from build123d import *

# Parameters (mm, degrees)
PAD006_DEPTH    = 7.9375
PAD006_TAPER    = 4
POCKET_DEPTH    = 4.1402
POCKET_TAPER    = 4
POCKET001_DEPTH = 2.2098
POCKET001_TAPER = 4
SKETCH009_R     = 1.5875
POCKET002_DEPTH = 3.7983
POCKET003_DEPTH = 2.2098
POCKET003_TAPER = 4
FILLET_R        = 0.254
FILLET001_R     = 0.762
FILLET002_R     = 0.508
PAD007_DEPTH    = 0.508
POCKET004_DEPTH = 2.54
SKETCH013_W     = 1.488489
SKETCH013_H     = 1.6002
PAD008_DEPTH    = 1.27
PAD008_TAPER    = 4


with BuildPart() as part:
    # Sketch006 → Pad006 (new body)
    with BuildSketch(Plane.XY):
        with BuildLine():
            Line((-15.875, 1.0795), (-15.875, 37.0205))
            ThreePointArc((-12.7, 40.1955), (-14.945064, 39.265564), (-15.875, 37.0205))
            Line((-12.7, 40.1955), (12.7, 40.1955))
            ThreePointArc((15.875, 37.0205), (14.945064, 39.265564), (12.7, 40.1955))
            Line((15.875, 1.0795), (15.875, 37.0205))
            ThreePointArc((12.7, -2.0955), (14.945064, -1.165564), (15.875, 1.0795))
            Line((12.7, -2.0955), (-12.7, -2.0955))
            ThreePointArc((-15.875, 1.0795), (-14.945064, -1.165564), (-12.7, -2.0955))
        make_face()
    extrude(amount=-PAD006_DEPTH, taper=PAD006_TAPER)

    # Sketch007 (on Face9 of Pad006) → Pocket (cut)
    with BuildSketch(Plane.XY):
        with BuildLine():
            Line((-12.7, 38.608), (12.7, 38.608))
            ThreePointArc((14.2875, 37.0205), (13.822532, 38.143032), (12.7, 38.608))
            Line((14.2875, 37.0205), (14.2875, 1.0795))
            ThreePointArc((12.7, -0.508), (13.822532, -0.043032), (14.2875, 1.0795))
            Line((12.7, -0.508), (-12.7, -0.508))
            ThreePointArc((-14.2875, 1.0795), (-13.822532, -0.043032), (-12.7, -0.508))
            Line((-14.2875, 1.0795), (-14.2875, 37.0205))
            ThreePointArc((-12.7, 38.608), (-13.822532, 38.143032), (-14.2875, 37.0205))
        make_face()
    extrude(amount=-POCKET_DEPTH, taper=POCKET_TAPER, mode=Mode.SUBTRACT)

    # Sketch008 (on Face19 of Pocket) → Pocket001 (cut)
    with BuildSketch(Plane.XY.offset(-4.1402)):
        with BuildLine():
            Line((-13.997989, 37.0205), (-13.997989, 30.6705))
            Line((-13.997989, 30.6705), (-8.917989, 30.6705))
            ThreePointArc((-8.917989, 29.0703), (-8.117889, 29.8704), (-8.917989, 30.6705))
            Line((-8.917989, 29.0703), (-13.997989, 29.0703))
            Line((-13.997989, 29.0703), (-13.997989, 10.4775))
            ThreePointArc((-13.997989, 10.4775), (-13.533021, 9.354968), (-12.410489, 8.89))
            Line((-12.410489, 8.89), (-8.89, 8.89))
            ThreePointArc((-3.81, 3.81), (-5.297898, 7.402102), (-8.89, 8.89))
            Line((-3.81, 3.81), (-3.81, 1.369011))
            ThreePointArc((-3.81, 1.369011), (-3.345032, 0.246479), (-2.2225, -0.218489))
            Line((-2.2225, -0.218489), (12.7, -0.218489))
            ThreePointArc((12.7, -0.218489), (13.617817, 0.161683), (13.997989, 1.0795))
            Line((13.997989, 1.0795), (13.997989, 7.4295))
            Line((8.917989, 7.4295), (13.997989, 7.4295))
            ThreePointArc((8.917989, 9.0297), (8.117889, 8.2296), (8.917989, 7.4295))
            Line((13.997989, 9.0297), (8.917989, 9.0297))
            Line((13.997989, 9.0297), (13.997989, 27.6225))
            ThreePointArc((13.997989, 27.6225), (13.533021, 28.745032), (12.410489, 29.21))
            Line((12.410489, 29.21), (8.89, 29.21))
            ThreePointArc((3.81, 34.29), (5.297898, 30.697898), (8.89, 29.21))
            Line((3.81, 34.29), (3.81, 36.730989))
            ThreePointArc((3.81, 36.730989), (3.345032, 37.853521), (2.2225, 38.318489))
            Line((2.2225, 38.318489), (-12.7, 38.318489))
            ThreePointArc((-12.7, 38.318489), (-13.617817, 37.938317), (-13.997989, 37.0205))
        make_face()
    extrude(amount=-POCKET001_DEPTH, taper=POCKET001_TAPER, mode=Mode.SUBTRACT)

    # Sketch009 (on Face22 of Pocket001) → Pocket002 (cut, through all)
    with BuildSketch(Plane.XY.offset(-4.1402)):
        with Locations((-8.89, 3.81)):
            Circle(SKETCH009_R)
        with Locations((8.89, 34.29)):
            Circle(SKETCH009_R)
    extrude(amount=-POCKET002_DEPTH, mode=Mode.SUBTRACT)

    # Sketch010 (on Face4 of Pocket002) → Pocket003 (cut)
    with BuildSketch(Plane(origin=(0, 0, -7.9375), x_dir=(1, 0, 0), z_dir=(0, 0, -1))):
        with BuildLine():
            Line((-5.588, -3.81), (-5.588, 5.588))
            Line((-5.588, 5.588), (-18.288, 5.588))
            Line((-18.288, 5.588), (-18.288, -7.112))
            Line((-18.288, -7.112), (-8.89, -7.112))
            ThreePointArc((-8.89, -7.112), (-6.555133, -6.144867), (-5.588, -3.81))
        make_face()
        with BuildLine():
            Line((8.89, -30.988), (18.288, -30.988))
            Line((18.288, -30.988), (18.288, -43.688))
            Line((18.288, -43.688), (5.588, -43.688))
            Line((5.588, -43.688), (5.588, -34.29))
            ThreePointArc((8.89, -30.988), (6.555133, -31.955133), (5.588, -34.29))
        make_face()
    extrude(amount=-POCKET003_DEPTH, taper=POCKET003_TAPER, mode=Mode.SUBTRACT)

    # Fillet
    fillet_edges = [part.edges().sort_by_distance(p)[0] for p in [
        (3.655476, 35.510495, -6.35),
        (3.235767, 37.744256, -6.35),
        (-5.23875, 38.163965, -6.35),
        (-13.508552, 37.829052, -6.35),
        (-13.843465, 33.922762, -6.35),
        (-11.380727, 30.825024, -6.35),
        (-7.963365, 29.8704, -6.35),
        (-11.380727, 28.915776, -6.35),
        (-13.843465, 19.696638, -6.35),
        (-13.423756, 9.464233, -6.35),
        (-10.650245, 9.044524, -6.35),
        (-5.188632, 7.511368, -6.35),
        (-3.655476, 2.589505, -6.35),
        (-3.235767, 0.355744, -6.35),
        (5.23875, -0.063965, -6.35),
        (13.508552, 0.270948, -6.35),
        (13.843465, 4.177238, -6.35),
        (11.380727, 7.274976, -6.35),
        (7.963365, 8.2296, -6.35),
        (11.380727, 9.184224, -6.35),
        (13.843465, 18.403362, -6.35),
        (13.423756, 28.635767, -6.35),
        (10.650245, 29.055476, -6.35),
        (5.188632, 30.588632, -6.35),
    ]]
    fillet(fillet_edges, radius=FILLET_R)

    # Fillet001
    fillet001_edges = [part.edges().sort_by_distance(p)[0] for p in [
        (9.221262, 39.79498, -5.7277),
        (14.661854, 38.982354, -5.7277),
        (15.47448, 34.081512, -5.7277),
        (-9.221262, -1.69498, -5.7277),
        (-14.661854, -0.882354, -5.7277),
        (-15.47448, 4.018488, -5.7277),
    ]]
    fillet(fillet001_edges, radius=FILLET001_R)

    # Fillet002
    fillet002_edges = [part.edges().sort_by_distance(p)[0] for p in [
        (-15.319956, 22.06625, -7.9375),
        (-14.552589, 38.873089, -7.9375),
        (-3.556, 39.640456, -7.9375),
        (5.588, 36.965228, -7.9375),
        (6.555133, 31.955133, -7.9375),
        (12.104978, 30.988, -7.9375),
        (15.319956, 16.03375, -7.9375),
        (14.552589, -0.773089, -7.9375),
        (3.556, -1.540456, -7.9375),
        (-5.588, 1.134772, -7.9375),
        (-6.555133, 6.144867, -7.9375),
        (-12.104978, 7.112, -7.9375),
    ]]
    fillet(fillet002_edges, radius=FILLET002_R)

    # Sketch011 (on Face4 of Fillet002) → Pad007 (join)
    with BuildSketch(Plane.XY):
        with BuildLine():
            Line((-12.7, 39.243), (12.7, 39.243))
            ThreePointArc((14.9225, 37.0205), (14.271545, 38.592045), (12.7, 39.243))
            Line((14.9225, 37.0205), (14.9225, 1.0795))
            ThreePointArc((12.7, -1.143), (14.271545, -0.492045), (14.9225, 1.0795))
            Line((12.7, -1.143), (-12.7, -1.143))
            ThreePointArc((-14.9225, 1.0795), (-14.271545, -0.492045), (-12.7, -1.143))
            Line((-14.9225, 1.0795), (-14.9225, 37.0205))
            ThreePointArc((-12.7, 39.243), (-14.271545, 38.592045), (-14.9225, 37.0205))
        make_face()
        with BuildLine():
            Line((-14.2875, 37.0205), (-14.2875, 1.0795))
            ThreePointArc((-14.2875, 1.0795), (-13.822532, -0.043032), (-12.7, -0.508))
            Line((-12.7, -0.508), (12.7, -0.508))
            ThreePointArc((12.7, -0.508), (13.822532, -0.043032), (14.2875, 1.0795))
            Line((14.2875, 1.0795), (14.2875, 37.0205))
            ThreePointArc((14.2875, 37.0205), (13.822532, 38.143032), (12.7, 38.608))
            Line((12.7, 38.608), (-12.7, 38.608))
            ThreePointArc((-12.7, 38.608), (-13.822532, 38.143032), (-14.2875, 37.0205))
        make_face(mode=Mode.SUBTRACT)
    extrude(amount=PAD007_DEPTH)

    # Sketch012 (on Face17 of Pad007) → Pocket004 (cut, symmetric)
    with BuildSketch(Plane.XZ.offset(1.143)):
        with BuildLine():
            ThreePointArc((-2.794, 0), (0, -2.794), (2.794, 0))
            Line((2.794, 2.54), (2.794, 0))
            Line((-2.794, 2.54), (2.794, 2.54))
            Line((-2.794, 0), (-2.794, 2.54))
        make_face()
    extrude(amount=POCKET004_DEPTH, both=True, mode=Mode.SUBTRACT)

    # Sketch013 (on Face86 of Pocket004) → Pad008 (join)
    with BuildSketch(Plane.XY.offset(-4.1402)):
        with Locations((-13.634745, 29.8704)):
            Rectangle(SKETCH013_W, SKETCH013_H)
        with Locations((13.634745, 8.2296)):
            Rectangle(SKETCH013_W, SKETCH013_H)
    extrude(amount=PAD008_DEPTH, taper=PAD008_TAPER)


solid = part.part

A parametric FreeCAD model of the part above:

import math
import FreeCAD as App
import Part
import Sketcher
from FreeCAD import Vector
Q = App.Units.Quantity


def edges_at(feature, points):
    """Names of the edges that pass closest to the given points."""
    edges = feature.Shape.Edges
    near = lambda p: min(range(len(edges)), key=lambda i: edges[i].distToShape(Part.Vertex(*p))[0])
    return sorted({f"Edge{near(p) + 1}" for p in points})

doc = App.newDocument("Part")
body = doc.addObject("PartDesign::Body", "Body")

# Sketch on XY plane
sketch1 = body.newObject("Sketcher::SketchObject", "Sketch")
sketch1.AttachmentSupport = (doc.getObject("XY_Plane"), [""])
sketch1.MapMode = "FlatFace"
sketch1.addGeometry([
    Part.LineSegment(Vector(-15.875, 37.0205, 0), Vector(-15.875, 1.0795, 0)),  # 0
    Part.ArcOfCircle(Part.Circle(Vector(-12.7, 1.0795, 0), Vector(0, 0, 1), 3.175), math.radians(-179.999998), math.radians(-90.000002)),  # 1
    Part.LineSegment(Vector(-12.7, -2.0955, 0), Vector(12.7, -2.0955, 0)),  # 2
    Part.ArcOfCircle(Part.Circle(Vector(12.7, 1.0795, 0), Vector(0, 0, 1), 3.175), math.radians(-89.999998), math.radians(-0.000002)),  # 3
    Part.LineSegment(Vector(15.875, 1.0795, 0), Vector(15.875, 37.0205, 0)),  # 4
    Part.ArcOfCircle(Part.Circle(Vector(12.7, 37.0205, 0), Vector(0, 0, 1), 3.175), math.radians(0.000002), math.radians(89.999998)),  # 5
    Part.LineSegment(Vector(12.7, 40.1955, 0), Vector(-12.7, 40.1955, 0)),  # 6
    Part.ArcOfCircle(Part.Circle(Vector(-12.7, 37.0205, 0), Vector(0, 0, 1), 3.175), math.radians(90.000002), math.radians(179.999998)),  # 7
], False)
sketch1.addConstraint([
    Sketcher.Constraint("Tangent", 0, 2, 1, 1),
    Sketcher.Constraint("Tangent", 1, 2, 2, 1),
    Sketcher.Constraint("Tangent", 2, 2, 3, 1),
    Sketcher.Constraint("Tangent", 3, 2, 4, 1),
    Sketcher.Constraint("Tangent", 4, 2, 5, 1),
    Sketcher.Constraint("Tangent", 5, 2, 6, 1),
    Sketcher.Constraint("Tangent", 6, 2, 7, 1),
    Sketcher.Constraint("Tangent", 7, 2, 0, 1),
    Sketcher.Constraint("Vertical", 0),
    Sketcher.Constraint("Horizontal", 2),
    Sketcher.Constraint("Vertical", 4),
    Sketcher.Constraint("Horizontal", 6),
    Sketcher.Constraint("Equal", 1, 3),
    Sketcher.Constraint("Equal", 3, 5),
    Sketcher.Constraint("Equal", 5, 7),
    Sketcher.Constraint("DistanceX", 2, 1, 2, 2, Q("1 in")),
    Sketcher.Constraint("Radius", 1, Q("0.125 in")),
    Sketcher.Constraint("DistanceX", 1, 3, -1, 1, Q("0.5 in")),
    Sketcher.Constraint("DistanceY", 0, 2, 0, 1, Q("1.415 in")),
    Sketcher.Constraint("DistanceY", -1, 1, 1, 3, Q("0.0425 in")),
])
pad1 = body.newObject("PartDesign::Pad", "Pad")
pad1.Profile = sketch1
pad1.Length = Q("0.3125 in")
pad1.Reversed = True
pad1.TaperAngle = -4

# Sketch on XY plane
sketch2 = body.newObject("Sketcher::SketchObject", "Sketch001")
sketch2.AttachmentSupport = (doc.getObject("XY_Plane"), [""])
sketch2.MapMode = "FlatFace"
sketch2.addGeometry([
    Part.LineSegment(Vector(12.7, 38.608, 0), Vector(-12.7, 38.608, 0)),  # 0
    Part.ArcOfCircle(Part.Circle(Vector(-12.7, 37.0205, 0), Vector(0, 0, 1), 1.5875), math.radians(90.000002), math.radians(179.999998)),  # 1
    Part.LineSegment(Vector(-14.2875, 37.0205, 0), Vector(-14.2875, 1.0795, 0)),  # 2
    Part.ArcOfCircle(Part.Circle(Vector(-12.7, 1.0795, 0), Vector(0, 0, 1), 1.5875), math.radians(-179.999998), math.radians(-90.000002)),  # 3
    Part.LineSegment(Vector(-12.7, -0.508, 0), Vector(12.7, -0.508, 0)),  # 4
    Part.ArcOfCircle(Part.Circle(Vector(12.7, 1.0795, 0), Vector(0, 0, 1), 1.5875), math.radians(-89.999998), math.radians(-0.000002)),  # 5
    Part.LineSegment(Vector(14.2875, 1.0795, 0), Vector(14.2875, 37.0205, 0)),  # 6
    Part.ArcOfCircle(Part.Circle(Vector(12.7, 37.0205, 0), Vector(0, 0, 1), 1.5875), math.radians(0.000002), math.radians(89.999998)),  # 7
], False)
sketch2.addConstraint([
    Sketcher.Constraint("Tangent", 0, 2, 1, 1),
    Sketcher.Constraint("Tangent", 1, 2, 2, 1),
    Sketcher.Constraint("Tangent", 2, 2, 3, 1),
    Sketcher.Constraint("Tangent", 3, 2, 4, 1),
    Sketcher.Constraint("Tangent", 4, 2, 5, 1),
    Sketcher.Constraint("Tangent", 5, 2, 6, 1),
    Sketcher.Constraint("Tangent", 6, 2, 7, 1),
    Sketcher.Constraint("Tangent", 7, 2, 0, 1),
    Sketcher.Constraint("Horizontal", 0),
    Sketcher.Constraint("Vertical", 2),
    Sketcher.Constraint("Horizontal", 4),
    Sketcher.Constraint("Vertical", 6),
    Sketcher.Constraint("Equal", 1, 3),
    Sketcher.Constraint("Equal", 3, 5),
    Sketcher.Constraint("Equal", 5, 7),
    Sketcher.Constraint("DistanceX", 0, 2, 0, 1, Q("1 in")),
    Sketcher.Constraint("Radius", 1, Q("0.0625 in")),
    Sketcher.Constraint("DistanceX", 1, 3, -1, 1, Q("0.5 in")),
    Sketcher.Constraint("DistanceY", 2, 2, 2, 1, Q("1.415 in")),
    Sketcher.Constraint("DistanceY", -1, 1, 0, 2, Q("1.52 in")),
])
pocket1 = body.newObject("PartDesign::Pocket", "Pocket")
pocket1.Profile = sketch2
pocket1.Length = Q("0.163 in")
pocket1.TaperAngle = -4

# Sketch on XY plane
sketch3 = body.newObject("Sketcher::SketchObject", "Sketch002")
sketch3.AttachmentSupport = (doc.getObject("XY_Plane"), [""])
sketch3.MapMode = "FlatFace"
sketch3.AttachmentOffset = App.Placement(Vector(0, 0, -0.163 * 25.4), App.Rotation())
sketch3.addGeometry([
    Part.LineSegment(Vector(-13.997989, 37.0205, 0), Vector(-13.997989, 30.6705, 0)),  # 0
    Part.LineSegment(Vector(-13.997989, 30.6705, 0), Vector(-8.917989, 30.6705, 0)),  # 1
    Part.ArcOfCircle(Part.Circle(Vector(-8.917989, 29.8704, 0), Vector(0, 0, 1), 0.8001), math.radians(-90), math.radians(90)),  # 2
    Part.LineSegment(Vector(-8.917989, 29.0703, 0), Vector(-13.997989, 29.0703, 0)),  # 3
    Part.LineSegment(Vector(-13.997989, 29.0703, 0), Vector(-13.997989, 10.4775, 0)),  # 4
    Part.ArcOfCircle(Part.Circle(Vector(-12.410489, 10.4775, 0), Vector(0, 0, 1), 1.5875), math.radians(-179.999998), math.radians(-90.000002)),  # 5
    Part.LineSegment(Vector(-12.410489, 8.89, 0), Vector(-8.89, 8.89, 0)),  # 6
    Part.ArcOfCircle(Part.Circle(Vector(-8.890002, 3.809998, 0), Vector(0, 0, 1), 5.080002), math.radians(0.000017), math.radians(89.999983)),  # 7
    Part.LineSegment(Vector(-3.81, 3.81, 0), Vector(-3.81, 1.369011, 0)),  # 8
    Part.ArcOfCircle(Part.Circle(Vector(-2.2225, 1.369011, 0), Vector(0, 0, 1), 1.5875), math.radians(-179.999998), math.radians(-90.000002)),  # 9
    Part.LineSegment(Vector(-2.2225, -0.218489, 0), Vector(12.7, -0.218489, 0)),  # 10
    Part.ArcOfCircle(Part.Circle(Vector(12.700001, 1.079499, 0), Vector(0, 0, 1), 1.297988), math.radians(-90.000027), math.radians(0.000027)),  # 11
    Part.LineSegment(Vector(13.997989, 1.0795, 0), Vector(13.997989, 7.4295, 0)),  # 12
    Part.LineSegment(Vector(13.997989, 7.4295, 0), Vector(8.917989, 7.4295, 0)),  # 13
    Part.ArcOfCircle(Part.Circle(Vector(8.917989, 8.2296, 0), Vector(0, 0, 1), 0.8001), math.radians(90), math.radians(270)),  # 14
    Part.LineSegment(Vector(8.917989, 9.0297, 0), Vector(13.997989, 9.0297, 0)),  # 15
    Part.LineSegment(Vector(13.997989, 9.0297, 0), Vector(13.997989, 27.6225, 0)),  # 16
    Part.ArcOfCircle(Part.Circle(Vector(12.410489, 27.6225, 0), Vector(0, 0, 1), 1.5875), math.radians(0.000002), math.radians(89.999998)),  # 17
    Part.LineSegment(Vector(12.410489, 29.21, 0), Vector(8.89, 29.21, 0)),  # 18
    Part.ArcOfCircle(Part.Circle(Vector(8.890002, 34.290002, 0), Vector(0, 0, 1), 5.080002), math.radians(-179.999983), math.radians(-90.000017)),  # 19
    Part.LineSegment(Vector(3.81, 34.29, 0), Vector(3.81, 36.730989, 0)),  # 20
    Part.ArcOfCircle(Part.Circle(Vector(2.2225, 36.730989, 0), Vector(0, 0, 1), 1.5875), math.radians(0.000002), math.radians(89.999998)),  # 21
    Part.LineSegment(Vector(2.2225, 38.318489, 0), Vector(-12.7, 38.318489, 0)),  # 22
    Part.ArcOfCircle(Part.Circle(Vector(-12.700001, 37.020501, 0), Vector(0, 0, 1), 1.297988), math.radians(89.999973), math.radians(180.000027)),  # 23
], False)
sketch3.addConstraint([
    Sketcher.Constraint("Coincident", 0, 2, 1, 1),
    Sketcher.Constraint("Tangent", 1, 2, 2, 2),
    Sketcher.Constraint("Tangent", 2, 1, 3, 1),
    Sketcher.Constraint("Coincident", 3, 2, 4, 1),
    Sketcher.Constraint("Tangent", 4, 2, 5, 1),
    Sketcher.Constraint("Tangent", 5, 2, 6, 1),
    Sketcher.Constraint("Tangent", 6, 2, 7, 2),
    Sketcher.Constraint("Tangent", 7, 1, 8, 1),
    Sketcher.Constraint("Tangent", 8, 2, 9, 1),
    Sketcher.Constraint("Tangent", 9, 2, 10, 1),
    Sketcher.Constraint("Tangent", 10, 2, 11, 1),
    Sketcher.Constraint("Tangent", 11, 2, 12, 1),
    Sketcher.Constraint("Coincident", 12, 2, 13, 1),
    Sketcher.Constraint("Tangent", 13, 2, 14, 2),
    Sketcher.Constraint("Tangent", 14, 1, 15, 1),
    Sketcher.Constraint("Coincident", 15, 2, 16, 1),
    Sketcher.Constraint("Tangent", 16, 2, 17, 1),
    Sketcher.Constraint("Tangent", 17, 2, 18, 1),
    Sketcher.Constraint("Tangent", 18, 2, 19, 2),
    Sketcher.Constraint("Tangent", 19, 1, 20, 1),
    Sketcher.Constraint("Tangent", 20, 2, 21, 1),
    Sketcher.Constraint("Tangent", 21, 2, 22, 1),
    Sketcher.Constraint("Tangent", 22, 2, 23, 1),
    Sketcher.Constraint("Tangent", 23, 2, 0, 1),
    Sketcher.Constraint("Vertical", 0),
    Sketcher.Constraint("Horizontal", 1),
    Sketcher.Constraint("Horizontal", 3),
    Sketcher.Constraint("Vertical", 4),
    Sketcher.Constraint("Horizontal", 6),
    Sketcher.Constraint("Vertical", 8),
    Sketcher.Constraint("Horizontal", 10),
    Sketcher.Constraint("Vertical", 12),
    Sketcher.Constraint("Horizontal", 13),
    Sketcher.Constraint("Horizontal", 15),
    Sketcher.Constraint("Vertical", 16),
    Sketcher.Constraint("Horizontal", 18),
    Sketcher.Constraint("Vertical", 20),
    Sketcher.Constraint("Horizontal", 22),
    Sketcher.Constraint("Equal", 5, 9),
    Sketcher.Constraint("Equal", 2, 14),
    Sketcher.Constraint("Equal", 9, 17),
    Sketcher.Constraint("Equal", 7, 19),
    Sketcher.Constraint("Equal", 17, 21),
    Sketcher.Constraint("Equal", 11, 23),
    Sketcher.Constraint("Vertical", 0, 2, 3, 2),
    Sketcher.Constraint("Vertical", 12, 2, 15, 2),
    Sketcher.Constraint("Equal", 3, 13),
    Sketcher.Constraint("Equal", 6, 18),
    Sketcher.Constraint("Equal", 0, 12),
    Sketcher.Constraint("Equal", 4, 16),
    Sketcher.Constraint("Radius", 7, Q("0.2000001 in")),
    Sketcher.Constraint("DistanceX", 1, 1, 1, 2, Q("0.2 in")),
    Sketcher.Constraint("Radius", 5, Q("0.0625 in")),
    Sketcher.Constraint("DistanceY", 0, 2, 0, 1, Q("0.25 in")),
    Sketcher.Constraint("DistanceX", -1, 1, 11, 3, Q("0.5 in")),
    Sketcher.Constraint("DistanceX", 23, 3, -1, 1, Q("0.5 in")),
    Sketcher.Constraint("Radius", 2, Q("0.0315 in")),
    Sketcher.Constraint("DistanceY", 4, 2, 4, 1, Q("0.732 in")),
    Sketcher.Constraint("DistanceX", 7, 3, -1, 1, Q("0.3500001 in")),
    Sketcher.Constraint("DistanceY", -1, 1, 7, 3, Q("0.1499999 in")),
    Sketcher.Constraint("DistanceY", -1, 1, 19, 3, Q("1.3500001 in")),
    Sketcher.Constraint("Radius", 11, 1.297988),
])
pocket2 = body.newObject("PartDesign::Pocket", "Pocket001")
pocket2.Profile = sketch3
pocket2.Length = Q("0.087 in")
pocket2.TaperAngle = -4

# Sketch on XY plane
sketch4 = body.newObject("Sketcher::SketchObject", "Sketch003")
sketch4.AttachmentSupport = (doc.getObject("XY_Plane"), [""])
sketch4.MapMode = "FlatFace"
sketch4.AttachmentOffset = App.Placement(Vector(0, 0, -0.163 * 25.4), App.Rotation())
sketch4.addGeometry([
    Part.Circle(Vector(-8.89, 3.81, 0), Vector(0, 0, 1), 1.5875),
    Part.Circle(Vector(8.89, 34.29, 0), Vector(0, 0, 1), 1.5875),
], False)
sketch4.addConstraint([
    Sketcher.Constraint("Equal", 0, 1),
    Sketcher.Constraint("Diameter", 0, Q("0.125 in")),
    Sketcher.Constraint("DistanceX", 0, 3, 1, 3, Q("0.7 in")),
    Sketcher.Constraint("DistanceY", 0, 3, 1, 3, Q("1.2 in")),
    Sketcher.Constraint("DistanceX", 0, 3, -1, 1, Q("0.35 in")),
    Sketcher.Constraint("DistanceY", -1, 1, 0, 3, Q("0.15 in")),
])
pocket3 = body.newObject("PartDesign::Pocket", "Pocket002")
pocket3.Profile = sketch4
pocket3.Type = "ThroughAll"

# Sketch on XY plane
sketch5 = body.newObject("Sketcher::SketchObject", "Sketch004")
sketch5.AttachmentSupport = (doc.getObject("XY_Plane"), [""])
sketch5.MapMode = "FlatFace"
sketch5.AttachmentOffset = App.Placement(Vector(0, 0, -0.3125 * 25.4), App.Rotation())
sketch5.addGeometry([
    Part.LineSegment(Vector(-5.588, 3.81, 0), Vector(-5.588, -5.588, 0)),  # 0
    Part.LineSegment(Vector(-5.588, -5.588, 0), Vector(-18.288, -5.588, 0)),  # 1
    Part.LineSegment(Vector(-18.288, -5.588, 0), Vector(-18.288, 7.112, 0)),  # 2
    Part.LineSegment(Vector(-18.288, 7.112, 0), Vector(-8.89, 7.112, 0)),  # 3
    Part.ArcOfCircle(Part.Circle(Vector(-8.889999, 3.810001, 0), Vector(0, 0, 1), 3.301999), math.radians(-0.000024), math.radians(90.000024)),  # 4
    Part.LineSegment(Vector(18.288, 30.988, 0), Vector(8.89, 30.988, 0)),  # 5
    Part.ArcOfCircle(Part.Circle(Vector(8.889999, 34.289999, 0), Vector(0, 0, 1), 3.301999), math.radians(179.999976), math.radians(270.000024)),  # 6
    Part.LineSegment(Vector(5.588, 34.29, 0), Vector(5.588, 43.688, 0)),  # 7
    Part.LineSegment(Vector(5.588, 43.688, 0), Vector(18.288, 43.688, 0)),  # 8
    Part.LineSegment(Vector(18.288, 43.688, 0), Vector(18.288, 30.988, 0)),  # 9
], False)
sketch5.addConstraint([
    Sketcher.Constraint("Coincident", 0, 2, 1, 1),
    Sketcher.Constraint("Coincident", 1, 2, 2, 1),
    Sketcher.Constraint("Coincident", 2, 2, 3, 1),
    Sketcher.Constraint("Tangent", 3, 2, 4, 2),
    Sketcher.Constraint("Tangent", 4, 1, 0, 1),
    Sketcher.Constraint("Tangent", 5, 2, 6, 2),
    Sketcher.Constraint("Tangent", 6, 1, 7, 1),
    Sketcher.Constraint("Coincident", 7, 2, 8, 1),
    Sketcher.Constraint("Coincident", 8, 2, 9, 1),
    Sketcher.Constraint("Coincident", 9, 2, 5, 1),
    Sketcher.Constraint("Vertical", 0),
    Sketcher.Constraint("Horizontal", 1),
    Sketcher.Constraint("Vertical", 2),
    Sketcher.Constraint("Horizontal", 3),
    Sketcher.Constraint("Horizontal", 5),
    Sketcher.Constraint("Vertical", 7),
    Sketcher.Constraint("Horizontal", 8),
    Sketcher.Constraint("Vertical", 9),
    Sketcher.Constraint("Equal", 4, 6),
    Sketcher.Constraint("Equal", 3, 5),
    Sketcher.Constraint("Equal", 5, 0),
    Sketcher.Constraint("Equal", 0, 7),
    Sketcher.Constraint("Radius", 4, Q("0.1299999 in")),
    Sketcher.Constraint("DistanceX", 1, 2, 1, 1, Q("0.5 in")),
    Sketcher.Constraint("DistanceX", 4, 3, 6, 3, Q("0.6999999 in")),
    Sketcher.Constraint("DistanceY", 4, 3, 6, 3, Q("1.1999999 in")),
    Sketcher.Constraint("DistanceX", 4, 3, -1, 1, Q("0.3499999 in")),
    Sketcher.Constraint("DistanceY", -1, 1, 4, 3, Q("0.1500001 in")),
])
pocket4 = body.newObject("PartDesign::Pocket", "Pocket003")
pocket4.Profile = sketch5
pocket4.Length = Q("0.087 in")
pocket4.Reversed = True
pocket4.TaperAngle = -4
doc.recompute()

fillet = body.newObject("PartDesign::Fillet", "Fillet")
fillet.Base = (pocket4, edges_at(pocket4, [
    (3.655, 35.51, -6.35),
    (3.236, 37.744, -6.35),
    (-5.239, 38.164, -6.35),
    (-13.509, 37.829, -6.35),
    (-13.843, 33.923, -6.35),
    (-11.381, 30.825, -6.35),
    (-7.963, 29.87, -6.35),
    (-11.381, 28.916, -6.35),
    (-13.843, 19.697, -6.35),
    (-13.424, 9.464, -6.35),
    (-10.65, 9.045, -6.35),
    (-5.189, 7.511, -6.35),
    (-3.655, 2.59, -6.35),
    (-3.236, 0.356, -6.35),
    (5.239, -0.064, -6.35),
    (13.509, 0.271, -6.35),
    (13.843, 4.177, -6.35),
    (11.381, 7.275, -6.35),
    (7.963, 8.23, -6.35),
    (11.381, 9.184, -6.35),
    (13.843, 18.403, -6.35),
    (13.424, 28.636, -6.35),
    (10.65, 29.055, -6.35),
    (5.189, 30.589, -6.35),
]))
fillet.Radius = Q("0.01 in")
doc.recompute()

fillet2 = body.newObject("PartDesign::Fillet", "Fillet001")
fillet2.Base = (fillet, edges_at(fillet, [
    (9.221, 39.795, -5.728),
    (14.662, 38.982, -5.728),
    (15.474, 34.082, -5.728),
    (-9.221, -1.695, -5.728),
    (-14.662, -0.882, -5.728),
    (-15.474, 4.018, -5.728),
]))
fillet2.Radius = Q("0.03 in")
doc.recompute()

fillet3 = body.newObject("PartDesign::Fillet", "Fillet002")
fillet3.Base = (fillet2, edges_at(fillet2, [
    (-15.32, 22.066, -7.938),
    (-14.553, 38.873, -7.938),
    (-3.556, 39.64, -7.938),
    (5.588, 36.965, -7.938),
    (6.555, 31.955, -7.938),
    (12.105, 30.988, -7.938),
    (15.32, 16.034, -7.938),
    (14.553, -0.773, -7.938),
    (3.556, -1.54, -7.938),
    (-5.588, 1.135, -7.938),
    (-6.555, 6.145, -7.938),
    (-12.105, 7.112, -7.938),
]))
fillet3.Radius = Q("0.02 in")

# Sketch on XY plane
sketch6 = body.newObject("Sketcher::SketchObject", "Sketch005")
sketch6.AttachmentSupport = (doc.getObject("XY_Plane"), [""])
sketch6.MapMode = "FlatFace"
sketch6.addGeometry([
    Part.LineSegment(Vector(12.7, 39.243, 0), Vector(-12.7, 39.243, 0)),  # 0
    Part.ArcOfCircle(Part.Circle(Vector(-12.700001, 37.020501, 0), Vector(0, 0, 1), 2.222499), math.radians(89.999984), math.radians(180.000016)),  # 1
    Part.LineSegment(Vector(-14.9225, 37.0205, 0), Vector(-14.9225, 1.0795, 0)),  # 2
    Part.ArcOfCircle(Part.Circle(Vector(-12.700001, 1.079499, 0), Vector(0, 0, 1), 2.222499), math.radians(179.999984), math.radians(270.000016)),  # 3
    Part.LineSegment(Vector(-12.7, -1.143, 0), Vector(12.7, -1.143, 0)),  # 4
    Part.ArcOfCircle(Part.Circle(Vector(12.700001, 1.079499, 0), Vector(0, 0, 1), 2.222499), math.radians(-90.000016), math.radians(0.000016)),  # 5
    Part.LineSegment(Vector(14.9225, 1.0795, 0), Vector(14.9225, 37.0205, 0)),  # 6
    Part.ArcOfCircle(Part.Circle(Vector(12.700001, 37.020501, 0), Vector(0, 0, 1), 2.222499), math.radians(-0.000016), math.radians(90.000016)),  # 7
    Part.ArcOfCircle(Part.Circle(Vector(-12.7, 37.0205, 0), Vector(0, 0, 1), 1.5875), math.radians(90.000002), math.radians(179.999998)),  # 8
    Part.LineSegment(Vector(-12.7, 38.608, 0), Vector(12.7, 38.608, 0)),  # 9
    Part.ArcOfCircle(Part.Circle(Vector(12.7, 37.0205, 0), Vector(0, 0, 1), 1.5875), math.radians(0.000002), math.radians(89.999998)),  # 10
    Part.LineSegment(Vector(14.2875, 37.0205, 0), Vector(14.2875, 1.0795, 0)),  # 11
    Part.ArcOfCircle(Part.Circle(Vector(12.7, 1.0795, 0), Vector(0, 0, 1), 1.5875), math.radians(-89.999998), math.radians(-0.000002)),  # 12
    Part.LineSegment(Vector(12.7, -0.508, 0), Vector(-12.7, -0.508, 0)),  # 13
    Part.ArcOfCircle(Part.Circle(Vector(-12.7, 1.0795, 0), Vector(0, 0, 1), 1.5875), math.radians(-179.999998), math.radians(-90.000002)),  # 14
    Part.LineSegment(Vector(-14.2875, 1.0795, 0), Vector(-14.2875, 37.0205, 0)),  # 15
], False)
sketch6.addConstraint([
    Sketcher.Constraint("Tangent", 0, 2, 1, 1),
    Sketcher.Constraint("Tangent", 1, 2, 2, 1),
    Sketcher.Constraint("Tangent", 2, 2, 3, 1),
    Sketcher.Constraint("Tangent", 3, 2, 4, 1),
    Sketcher.Constraint("Tangent", 4, 2, 5, 1),
    Sketcher.Constraint("Tangent", 5, 2, 6, 1),
    Sketcher.Constraint("Tangent", 6, 2, 7, 1),
    Sketcher.Constraint("Tangent", 7, 2, 0, 1),
    Sketcher.Constraint("Tangent", 8, 1, 9, 1),
    Sketcher.Constraint("Tangent", 9, 2, 10, 2),
    Sketcher.Constraint("Tangent", 10, 1, 11, 1),
    Sketcher.Constraint("Tangent", 11, 2, 12, 2),
    Sketcher.Constraint("Tangent", 12, 1, 13, 1),
    Sketcher.Constraint("Tangent", 13, 2, 14, 2),
    Sketcher.Constraint("Tangent", 14, 1, 15, 1),
    Sketcher.Constraint("Tangent", 15, 2, 8, 2),
    Sketcher.Constraint("Horizontal", 0),
    Sketcher.Constraint("Vertical", 2),
    Sketcher.Constraint("Horizontal", 4),
    Sketcher.Constraint("Vertical", 6),
    Sketcher.Constraint("Horizontal", 9),
    Sketcher.Constraint("Vertical", 11),
    Sketcher.Constraint("Horizontal", 13),
    Sketcher.Constraint("Vertical", 15),
    Sketcher.Constraint("Coincident", 8, 3, 1, 3),
    Sketcher.Constraint("Coincident", 10, 3, 7, 3),
    Sketcher.Constraint("Coincident", 12, 3, 5, 3),
    Sketcher.Constraint("Equal", 1, 3),
    Sketcher.Constraint("Equal", 3, 5),
    Sketcher.Constraint("Equal", 5, 7),
    Sketcher.Constraint("Equal", 12, 14),
    Sketcher.Constraint("DistanceX", 0, 2, 0, 1, Q("1 in")),
    Sketcher.Constraint("Radius", 8, Q("0.0625 in")),
    Sketcher.Constraint("DistanceX", 1, 3, -1, 1, Q("0.5 in")),
    Sketcher.Constraint("Radius", 1, Q("0.0875 in")),
    Sketcher.Constraint("DistanceY", 2, 2, 2, 1, Q("1.415 in")),
    Sketcher.Constraint("DistanceY", -1, 1, 8, 1, Q("1.52 in")),
])
pad2 = body.newObject("PartDesign::Pad", "Pad001")
pad2.Profile = sketch6
pad2.Length = Q("0.02 in")

# Sketch on XZ plane
sketch7 = body.newObject("Sketcher::SketchObject", "Sketch006")
sketch7.AttachmentSupport = (doc.getObject("XZ_Plane"), [""])
sketch7.MapMode = "FlatFace"
sketch7.AttachmentOffset = App.Placement(Vector(0, 0, 0.045 * 25.4), App.Rotation())
sketch7.addGeometry([
    Part.ArcOfCircle(Part.Circle(Vector(0, 0, 0), Vector(0, 0, 1), 2.794), math.radians(180), math.radians(360)),
    Part.LineSegment(Vector(2.794, 0, 0), Vector(2.794, 2.54, 0)),
    Part.LineSegment(Vector(2.794, 2.54, 0), Vector(-2.794, 2.54, 0)),
    Part.LineSegment(Vector(-2.794, 2.54, 0), Vector(-2.794, 0, 0)),
], False)
sketch7.addConstraint([
    Sketcher.Constraint("Tangent", 0, 2, 1, 1),
    Sketcher.Constraint("Coincident", 1, 2, 2, 1),
    Sketcher.Constraint("Coincident", 2, 2, 3, 1),
    Sketcher.Constraint("Tangent", 3, 2, 0, 1),
    Sketcher.Constraint("Vertical", 1),
    Sketcher.Constraint("Horizontal", 2),
    Sketcher.Constraint("Vertical", 3),
    Sketcher.Constraint("Coincident", 0, 3, -1, 1),
    Sketcher.Constraint("Radius", 0, Q("0.11 in")),
    Sketcher.Constraint("DistanceY", 1, 1, 1, 2, Q("0.1 in")),
])
pocket5 = body.newObject("PartDesign::Pocket", "Pocket004")
pocket5.Profile = sketch7
pocket5.Length = Q("0.2 in")
pocket5.Midplane = True

# Sketch on XY plane
sketch8 = body.newObject("Sketcher::SketchObject", "Sketch007")
sketch8.AttachmentSupport = (doc.getObject("XY_Plane"), [""])
sketch8.MapMode = "FlatFace"
sketch8.AttachmentOffset = App.Placement(Vector(0, 0, -0.163 * 25.4), App.Rotation())
sketch8.addGeometry([
    Part.LineSegment(Vector(-14.378989, 30.6705, 0), Vector(-14.378989, 29.0703, 0)),  # 0
    Part.LineSegment(Vector(-14.378989, 29.0703, 0), Vector(-12.8905, 29.0703, 0)),  # 1
    Part.LineSegment(Vector(-12.8905, 29.0703, 0), Vector(-12.8905, 30.6705, 0)),  # 2
    Part.LineSegment(Vector(-12.8905, 30.6705, 0), Vector(-14.378989, 30.6705, 0)),  # 3
    Part.LineSegment(Vector(12.8905, 9.0297, 0), Vector(12.8905, 7.4295, 0)),  # 4
    Part.LineSegment(Vector(12.8905, 7.4295, 0), Vector(14.378989, 7.4295, 0)),  # 5
    Part.LineSegment(Vector(14.378989, 7.4295, 0), Vector(14.378989, 9.0297, 0)),  # 6
    Part.LineSegment(Vector(14.378989, 9.0297, 0), Vector(12.8905, 9.0297, 0)),  # 7
], False)
sketch8.addConstraint([
    Sketcher.Constraint("Coincident", 0, 2, 1, 1),
    Sketcher.Constraint("Coincident", 1, 2, 2, 1),
    Sketcher.Constraint("Coincident", 2, 2, 3, 1),
    Sketcher.Constraint("Coincident", 3, 2, 0, 1),
    Sketcher.Constraint("Coincident", 4, 2, 5, 1),
    Sketcher.Constraint("Coincident", 5, 2, 6, 1),
    Sketcher.Constraint("Coincident", 6, 2, 7, 1),
    Sketcher.Constraint("Coincident", 7, 2, 4, 1),
    Sketcher.Constraint("Vertical", 0),
    Sketcher.Constraint("Horizontal", 1),
    Sketcher.Constraint("Vertical", 2),
    Sketcher.Constraint("Horizontal", 3),
    Sketcher.Constraint("Vertical", 4),
    Sketcher.Constraint("Horizontal", 5),
    Sketcher.Constraint("Vertical", 6),
    Sketcher.Constraint("Horizontal", 7),
    Sketcher.Constraint("Equal", 3, 5),
    Sketcher.Constraint("Equal", 2, 4),
    Sketcher.Constraint("DistanceY", 0, 2, 0, 1, Q("0.063 in")),
    Sketcher.Constraint("DistanceX", 1, 2, 4, 2, Q("1.015 in")),
    Sketcher.Constraint("DistanceY", 4, 2, 1, 2, Q("0.852 in")),
    Sketcher.Constraint("DistanceY", -1, 1, 0, 2, Q("1.1445 in")),
    Sketcher.Constraint("DistanceX", 1, 2, -1, 1, Q("0.5075 in")),
    Sketcher.Constraint("DistanceX", 1, 1, 1, 2, 1.488489),
])
pad3 = body.newObject("PartDesign::Pad", "Pad002")
pad3.Profile = sketch8
pad3.Length = Q("0.05 in")
pad3.TaperAngle = -4

doc.recompute()
